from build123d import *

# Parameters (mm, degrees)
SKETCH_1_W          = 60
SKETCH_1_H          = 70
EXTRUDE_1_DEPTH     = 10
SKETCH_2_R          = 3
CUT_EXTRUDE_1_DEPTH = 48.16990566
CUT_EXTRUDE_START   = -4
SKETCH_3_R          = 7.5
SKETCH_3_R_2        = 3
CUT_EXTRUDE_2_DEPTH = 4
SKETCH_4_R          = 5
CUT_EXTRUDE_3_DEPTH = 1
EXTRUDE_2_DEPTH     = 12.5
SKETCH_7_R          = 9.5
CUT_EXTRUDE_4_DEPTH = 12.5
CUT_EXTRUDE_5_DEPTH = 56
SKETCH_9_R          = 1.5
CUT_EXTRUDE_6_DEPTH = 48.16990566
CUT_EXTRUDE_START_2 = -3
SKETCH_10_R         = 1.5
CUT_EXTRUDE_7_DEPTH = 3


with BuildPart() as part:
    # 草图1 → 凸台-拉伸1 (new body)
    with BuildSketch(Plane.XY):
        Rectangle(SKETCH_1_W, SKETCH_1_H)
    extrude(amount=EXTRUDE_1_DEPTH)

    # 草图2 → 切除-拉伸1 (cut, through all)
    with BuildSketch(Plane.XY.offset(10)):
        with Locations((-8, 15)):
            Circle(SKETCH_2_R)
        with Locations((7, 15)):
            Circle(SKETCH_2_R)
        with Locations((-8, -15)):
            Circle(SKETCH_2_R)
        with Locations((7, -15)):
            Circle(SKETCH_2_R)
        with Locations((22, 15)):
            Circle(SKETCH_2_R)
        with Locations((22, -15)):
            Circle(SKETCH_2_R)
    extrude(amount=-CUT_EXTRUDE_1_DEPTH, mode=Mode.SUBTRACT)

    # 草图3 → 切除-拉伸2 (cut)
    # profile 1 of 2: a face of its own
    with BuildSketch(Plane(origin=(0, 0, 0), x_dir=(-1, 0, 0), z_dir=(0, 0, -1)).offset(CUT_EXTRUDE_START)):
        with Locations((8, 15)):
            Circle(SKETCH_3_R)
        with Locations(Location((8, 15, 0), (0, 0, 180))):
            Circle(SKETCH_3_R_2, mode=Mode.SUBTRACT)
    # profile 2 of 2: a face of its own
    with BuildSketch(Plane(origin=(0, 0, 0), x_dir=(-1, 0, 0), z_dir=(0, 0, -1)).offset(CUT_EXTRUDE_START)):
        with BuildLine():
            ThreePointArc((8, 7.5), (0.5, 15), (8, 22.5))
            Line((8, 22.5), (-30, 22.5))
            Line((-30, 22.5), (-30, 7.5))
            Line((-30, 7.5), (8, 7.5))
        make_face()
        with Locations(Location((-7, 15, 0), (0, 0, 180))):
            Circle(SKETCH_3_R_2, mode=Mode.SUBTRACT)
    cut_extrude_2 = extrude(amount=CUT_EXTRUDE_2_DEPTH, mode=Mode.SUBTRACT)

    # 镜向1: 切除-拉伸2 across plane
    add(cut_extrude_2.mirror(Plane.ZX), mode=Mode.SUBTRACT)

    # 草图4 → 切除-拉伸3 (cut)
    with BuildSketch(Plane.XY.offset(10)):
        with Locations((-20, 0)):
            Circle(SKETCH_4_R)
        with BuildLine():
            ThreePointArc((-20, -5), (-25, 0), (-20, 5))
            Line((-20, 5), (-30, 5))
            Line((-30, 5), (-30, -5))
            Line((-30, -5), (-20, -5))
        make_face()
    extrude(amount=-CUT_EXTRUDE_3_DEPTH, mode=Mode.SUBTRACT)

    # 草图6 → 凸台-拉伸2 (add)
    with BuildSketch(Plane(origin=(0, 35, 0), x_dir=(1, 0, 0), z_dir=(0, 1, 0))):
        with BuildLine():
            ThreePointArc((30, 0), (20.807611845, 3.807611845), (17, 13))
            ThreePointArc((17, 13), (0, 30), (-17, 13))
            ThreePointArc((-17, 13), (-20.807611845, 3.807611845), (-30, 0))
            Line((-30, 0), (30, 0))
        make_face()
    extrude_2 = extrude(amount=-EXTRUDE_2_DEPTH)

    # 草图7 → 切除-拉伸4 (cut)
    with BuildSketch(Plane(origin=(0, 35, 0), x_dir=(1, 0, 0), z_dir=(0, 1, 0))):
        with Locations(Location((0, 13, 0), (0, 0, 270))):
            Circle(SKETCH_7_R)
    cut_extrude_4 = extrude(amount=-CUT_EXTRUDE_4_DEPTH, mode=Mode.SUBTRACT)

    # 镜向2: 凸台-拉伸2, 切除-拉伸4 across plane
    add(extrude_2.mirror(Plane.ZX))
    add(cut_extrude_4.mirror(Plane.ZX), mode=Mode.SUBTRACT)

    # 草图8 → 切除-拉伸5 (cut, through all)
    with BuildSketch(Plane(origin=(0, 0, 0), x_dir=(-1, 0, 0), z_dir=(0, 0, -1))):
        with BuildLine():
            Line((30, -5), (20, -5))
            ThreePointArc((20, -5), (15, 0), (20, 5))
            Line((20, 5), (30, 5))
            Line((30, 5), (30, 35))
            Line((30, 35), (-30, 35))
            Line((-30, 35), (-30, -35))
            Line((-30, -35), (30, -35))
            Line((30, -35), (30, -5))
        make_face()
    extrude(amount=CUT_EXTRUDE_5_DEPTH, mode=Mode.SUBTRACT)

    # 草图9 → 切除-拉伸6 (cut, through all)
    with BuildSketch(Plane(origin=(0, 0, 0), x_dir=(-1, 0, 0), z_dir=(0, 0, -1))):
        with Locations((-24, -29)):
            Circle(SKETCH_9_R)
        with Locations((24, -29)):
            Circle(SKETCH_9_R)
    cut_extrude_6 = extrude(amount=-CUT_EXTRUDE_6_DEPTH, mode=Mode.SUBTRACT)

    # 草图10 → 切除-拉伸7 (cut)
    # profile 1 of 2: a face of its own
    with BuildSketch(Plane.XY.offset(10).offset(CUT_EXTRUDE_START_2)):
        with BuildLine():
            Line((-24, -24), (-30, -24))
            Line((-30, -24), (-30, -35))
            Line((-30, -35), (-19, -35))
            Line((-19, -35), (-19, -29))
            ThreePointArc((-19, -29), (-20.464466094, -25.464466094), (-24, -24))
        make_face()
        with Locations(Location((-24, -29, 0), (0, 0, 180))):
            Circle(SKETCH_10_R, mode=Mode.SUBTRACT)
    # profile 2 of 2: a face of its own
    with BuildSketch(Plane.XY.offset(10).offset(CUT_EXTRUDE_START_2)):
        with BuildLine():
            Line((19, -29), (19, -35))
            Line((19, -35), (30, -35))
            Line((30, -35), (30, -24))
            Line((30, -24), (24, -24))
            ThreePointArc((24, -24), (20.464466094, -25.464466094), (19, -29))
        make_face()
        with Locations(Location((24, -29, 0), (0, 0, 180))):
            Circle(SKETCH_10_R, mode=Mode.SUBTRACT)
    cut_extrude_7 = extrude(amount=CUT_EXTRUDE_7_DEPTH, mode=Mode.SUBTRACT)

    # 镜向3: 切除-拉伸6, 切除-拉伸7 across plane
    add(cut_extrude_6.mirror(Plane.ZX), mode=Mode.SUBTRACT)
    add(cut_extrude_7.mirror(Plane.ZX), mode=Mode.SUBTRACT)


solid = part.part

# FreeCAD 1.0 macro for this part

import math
import FreeCAD as App
import Part
import Sketcher

doc = App.newDocument("Part")
body = doc.addObject("PartDesign::Body", "Body")

# Sketch on XY plane
sketch1 = body.newObject("Sketcher::SketchObject", "Sketch")
sketch1.AttachmentSupport = (doc.getObject("XY_Plane"), [""])
sketch1.MapMode = "FlatFace"
sketch1.addGeometry([
    Part.LineSegment(App.Vector(-30, 35, 0), App.Vector(-30, -35, 0)),
    Part.LineSegment(App.Vector(-30, -35, 0), App.Vector(30, -35, 0)),
    Part.LineSegment(App.Vector(30, -35, 0), App.Vector(30, 35, 0)),
    Part.LineSegment(App.Vector(30, 35, 0), App.Vector(-30, 35, 0)),
], False)
sketch1.addConstraint([
    Sketcher.Constraint("Coincident", 0, 2, 1, 1),
    Sketcher.Constraint("Coincident", 1, 2, 2, 1),
    Sketcher.Constraint("Coincident", 2, 2, 3, 1),
    Sketcher.Constraint("Coincident", 3, 2, 0, 1),
    Sketcher.Constraint("Vertical", 0),
    Sketcher.Constraint("Horizontal", 1),
    Sketcher.Constraint("Vertical", 2),
    Sketcher.Constraint("Horizontal", 3),
    Sketcher.Constraint("Symmetric", 0, 2, 2, 2, -1, 1),
    Sketcher.Constraint("DistanceX", 1, 1, 1, 2, 60.0),
    Sketcher.Constraint("DistanceY", 0, 2, 0, 1, 70.0),
])
pad1 = body.newObject("PartDesign::Pad", "Pad")
pad1.Profile = sketch1
pad1.Length = 10

# Sketch on XY plane
sketch2 = body.newObject("Sketcher::SketchObject", "Sketch001")
sketch2.AttachmentSupport = (doc.getObject("XY_Plane"), [""])
sketch2.MapMode = "FlatFace"
sketch2.AttachmentOffset = App.Placement(App.Vector(0, 0, 10), App.Rotation())
sketch2.addGeometry([
    Part.Circle(App.Vector(-8, 15, 0), App.Vector(0, 0, 1), 3),  # 0
    Part.Circle(App.Vector(7, 15, 0), App.Vector(0, 0, 1), 3),  # 1
    Part.Circle(App.Vector(-8, -15, 0), App.Vector(0, 0, 1), 3),  # 2
    Part.Circle(App.Vector(7, -15, 0), App.Vector(0, 0, 1), 3),  # 3
    Part.Circle(App.Vector(22, 15, 0), App.Vector(0, 0, 1), 3),  # 4
    Part.Circle(App.Vector(22, -15, 0), App.Vector(0, 0, 1), 3),  # 5
], False)
sketch2.addConstraint([
    Sketcher.Constraint("Equal", 0, 1),
    Sketcher.Constraint("Equal", 1, 2),
    Sketcher.Constraint("Equal", 2, 3),
    Sketcher.Constraint("Equal", 3, 4),
    Sketcher.Constraint("Equal", 4, 5),
    Sketcher.Constraint("Symmetric", 0, 3, 2, 3, -1),
    Sketcher.Constraint("Symmetric", 1, 3, 3, 3, -1),
    Sketcher.Constraint("Symmetric", 4, 3, 5, 3, -1),
    Sketcher.Constraint("Horizontal", 0, 3, 1, 3),
    Sketcher.Constraint("Horizontal", 1, 3, 4, 3),
    Sketcher.Constraint("Diameter", 0, 6.0),
    Sketcher.Constraint("DistanceX", 0, 3, -1, 1, 8.0),
    Sketcher.Constraint("DistanceY", -1, 1, 0, 3, 15.0),
    Sketcher.Constraint("DistanceX", -1, 1, 1, 3, 7.0),
    Sketcher.Constraint("DistanceX", -1, 1, 4, 3, 22.0),
])
pocket1 = body.newObject("PartDesign::Pocket", "Pocket")
pocket1.Profile = sketch2
pocket1.Type = "ThroughAll"

# Sketch on XY plane
sketch3 = body.newObject("Sketcher::SketchObject", "Sketch002")
sketch3.AttachmentSupport = (doc.getObject("XY_Plane"), [""])
sketch3.MapMode = "FlatFace"
sketch3.AttachmentOffset = App.Placement(App.Vector(0, 0, 4), App.Rotation())
sketch3.addGeometry([
    Part.LineSegment(App.Vector(-8, 22.5, 0), App.Vector(30, 22.5, 0)),  # 0
    Part.LineSegment(App.Vector(30, 22.5, 0), App.Vector(30, 7.5, 0)),  # 1
    Part.LineSegment(App.Vector(30, 7.5, 0), App.Vector(-8, 7.5, 0)),  # 2
    Part.ArcOfCircle(Part.Circle(App.Vector(-8, 15, 0), App.Vector(0, 0, 1), 7.5), math.radians(90), math.radians(270)),  # 3
    Part.Circle(App.Vector(-8, 15, 0), App.Vector(0, 0, 1), 3),  # 4
    Part.Circle(App.Vector(7, 15, 0), App.Vector(0, 0, 1), 3),  # 5
], False)
sketch3.addConstraint([
    Sketcher.Constraint("Coincident", 0, 2, 1, 1),
    Sketcher.Constraint("Coincident", 1, 2, 2, 1),
    Sketcher.Constraint("Tangent", 2, 2, 3, 2),
    Sketcher.Constraint("Tangent", 3, 1, 0, 1),
    Sketcher.Constraint("Horizontal", 0),
    Sketcher.Constraint("Vertical", 1),
    Sketcher.Constraint("Horizontal", 2),
    Sketcher.Constraint("Coincident", 4, 3, 3, 3),
    Sketcher.Constraint("Equal", 4, 5),
    Sketcher.Constraint("Horizontal", 4, 3, 5, 3),
    Sketcher.Constraint("Diameter", 4, 6.0),
    Sketcher.Constraint("Radius", 3, 7.5),
    Sketcher.Constraint("DistanceX", 0, 1, 0, 2, 38.0),
    Sketcher.Constraint("DistanceX", 3, 3, -1, 1, 8.0),
    Sketcher.Constraint("DistanceY", -1, 1, 3, 3, 15.0),
    Sketcher.Constraint("DistanceX", -1, 1, 5, 3, 7.0),
])
pocket2 = body.newObject("PartDesign::Pocket", "Pocket001")
pocket2.Profile = sketch3
pocket2.Length = 4
doc.recompute()

mirrored = body.newObject("PartDesign::Mirrored", "Mirrored")
mirrored.Originals = [pocket2]
mirrored.MirrorPlane = (doc.getObject("XZ_Plane"), [""])
body.Tip = mirrored

# Sketch on XY plane
sketch4 = body.newObject("Sketcher::SketchObject", "Sketch003")
sketch4.AttachmentSupport = (doc.getObject("XY_Plane"), [""])
sketch4.MapMode = "FlatFace"
sketch4.AttachmentOffset = App.Placement(App.Vector(0, 0, 10), App.Rotation())
sketch4.addGeometry([
    Part.LineSegment(App.Vector(-20, 5, 0), App.Vector(-30, 5, 0)),
    Part.LineSegment(App.Vector(-30, 5, 0), App.Vector(-30, -5, 0)),
    Part.LineSegment(App.Vector(-30, -5, 0), App.Vector(-20, -5, 0)),
    Part.ArcOfCircle(Part.Circle(App.Vector(-20, 0, 0), App.Vector(0, 0, 1), 5), math.radians(-90), math.radians(90)),
], False)
sketch4.addConstraint([
    Sketcher.Constraint("Coincident", 0, 2, 1, 1),
    Sketcher.Constraint("Coincident", 1, 2, 2, 1),
    Sketcher.Constraint("Tangent", 2, 2, 3, 1),
    Sketcher.Constraint("Tangent", 3, 2, 0, 1),
    Sketcher.Constraint("Horizontal", 0),
    Sketcher.Constraint("Vertical", 1),
    Sketcher.Constraint("Horizontal", 2),
    Sketcher.Constraint("PointOnObject", 3, 3, -1),
    Sketcher.Constraint("Equal", 2, 1),
    Sketcher.Constraint("Radius", 3, 5.0),
    Sketcher.Constraint("DistanceX", 3, 3, -1, 1, 20.0),
])
pocket3 = body.newObject("PartDesign::Pocket", "Pocket002")
pocket3.Profile = sketch4
pocket3.Length = 1

# Sketch on XZ plane
sketch5 = body.newObject("Sketcher::SketchObject", "Sketch004")
sketch5.AttachmentSupport = (doc.getObject("XZ_Plane"), [""])
sketch5.MapMode = "FlatFace"
sketch5.AttachmentOffset = App.Placement(App.Vector(0, 0, -35), App.Rotation())
sketch5.addGeometry([
    Part.ArcOfCircle(Part.Circle(App.Vector(30, -13, 0), App.Vector(0, 0, 1), 13), math.radians(90), math.radians(180)),
    Part.ArcOfCircle(Part.Circle(App.Vector(0, -13, 0), App.Vector(0, 0, 1), 17), math.radians(180), math.radians(360)),
    Part.ArcOfCircle(Part.Circle(App.Vector(-30, -13, 0), App.Vector(0, 0, 1), 13), math.radians(0), math.radians(90)),
    Part.LineSegment(App.Vector(-30, 0, 0), App.Vector(30, 0, 0)),
], False)
sketch5.addConstraint([
    Sketcher.Constraint("Tangent", 0, 2, 1, 2),
    Sketcher.Constraint("Tangent", 1, 1, 2, 1),
    Sketcher.Constraint("Tangent", 2, 2, 3, 1),
    Sketcher.Constraint("Tangent", 3, 2, 0, 1),
    Sketcher.Constraint("Horizontal", 3),
    Sketcher.Constraint("Equal", 0, 2),
    Sketcher.Constraint("Symmetric", 2, 2, 3, 2, -1, 1),
    Sketcher.Constraint("Horizontal", 0, 3, 1, 3),
    Sketcher.Constraint("Radius", 0, 13.0),
    Sketcher.Constraint("Radius", 1, 17.0),
])
pad2 = body.newObject("PartDesign::Pad", "Pad001")
pad2.Profile = sketch5
pad2.Length = 12.5

# Sketch on XZ plane
sketch6 = body.newObject("Sketcher::SketchObject", "Sketch005")
sketch6.AttachmentSupport = (doc.getObject("XZ_Plane"), [""])
sketch6.MapMode = "FlatFace"
sketch6.AttachmentOffset = App.Placement(App.Vector(0, 0, -35), App.Rotation())
sketch6.addGeometry(Part.Circle(App.Vector(0, -13, 0), App.Vector(0, 0, 1), 10), False)
sketch6.addConstraint([
    Sketcher.Constraint("PointOnObject", 0, 3, -2),
    Sketcher.Constraint("Diameter", 0, 19.0),
    Sketcher.Constraint("DistanceY", 0, 3, -1, 1, 13.0),
])
pocket4 = body.newObject("PartDesign::Pocket", "Pocket003")
pocket4.Profile = sketch6
pocket4.Length = 12.5
pocket4.Reversed = True
doc.recompute()

mirrored2 = body.newObject("PartDesign::Mirrored", "Mirrored001")
mirrored2.Originals = [pad2, pocket4]
mirrored2.MirrorPlane = (doc.getObject("XZ_Plane"), [""])
body.Tip = mirrored2

# Sketch on XY plane
sketch7 = body.newObject("Sketcher::SketchObject", "Sketch006")
sketch7.AttachmentSupport = (doc.getObject("XY_Plane"), [""])
sketch7.MapMode = "FlatFace"
sketch7.addGeometry([
    Part.LineSegment(App.Vector(-30, -5, 0), App.Vector(-20, -5, 0)),  # 0
    Part.ArcOfCircle(Part.Circle(App.Vector(-20, 0, 0), App.Vector(0, 0, 1), 5), math.radians(-90), math.radians(90)),  # 1
    Part.LineSegment(App.Vector(-20, 5, 0), App.Vector(-30, 5, 0)),  # 2
    Part.LineSegment(App.Vector(-30, 5, 0), App.Vector(-30, 35, 0)),  # 3
    Part.LineSegment(App.Vector(-30, 35, 0), App.Vector(30, 35, 0)),  # 4
    Part.LineSegment(App.Vector(30, 35, 0), App.Vector(30, -35, 0)),  # 5
    Part.LineSegment(App.Vector(30, -35, 0), App.Vector(-30, -35, 0)),  # 6
    Part.LineSegment(App.Vector(-30, -35, 0), App.Vector(-30, -5, 0)),  # 7
], False)
sketch7.addConstraint([
    Sketcher.Constraint("Tangent", 0, 2, 1, 1),
    Sketcher.Constraint("Tangent", 1, 2, 2, 1),
    Sketcher.Constraint("Coincident", 2, 2, 3, 1),
    Sketcher.Constraint("Coincident", 3, 2, 4, 1),
    Sketcher.Constraint("Coincident", 4, 2, 5, 1),
    Sketcher.Constraint("Coincident", 5, 2, 6, 1),
    Sketcher.Constraint("Coincident", 6, 2, 7, 1),
    Sketcher.Constraint("Coincident", 7, 2, 0, 1),
    Sketcher.Constraint("Horizontal", 0),
    Sketcher.Constraint("Horizontal", 2),
    Sketcher.Constraint("Vertical", 3),
    Sketcher.Constraint("Horizontal", 4),
    Sketcher.Constraint("Vertical", 5),
    Sketcher.Constraint("Horizontal", 6),
    Sketcher.Constraint("Vertical", 7),
    Sketcher.Constraint("Symmetric", 3, 2, 5, 2, -1, 1),
    Sketcher.Constraint("Symmetric", 2, 2, 7, 2, -1),
    Sketcher.Constraint("Radius", 1, 5.0),
    Sketcher.Constraint("DistanceX", 0, 1, 0, 2, 10.0),
    Sketcher.Constraint("DistanceX", 4, 1, 4, 2, 60.0),
    Sketcher.Constraint("DistanceY", 3, 1, 3, 2, 30.0),
])
pocket5 = body.newObject("PartDesign::Pocket", "Pocket004")
pocket5.Profile = sketch7
pocket5.Type = "ThroughAll"

# Sketch on XY plane
sketch8 = body.newObject("Sketcher::SketchObject", "Sketch007")
sketch8.AttachmentSupport = (doc.getObject("XY_Plane"), [""])
sketch8.MapMode = "FlatFace"
sketch8.addGeometry([
    Part.Circle(App.Vector(24, -29, 0), App.Vector(0, 0, 1), 1.5),
    Part.Circle(App.Vector(-24, -29, 0), App.Vector(0, 0, 1), 1.5),
], False)
sketch8.addConstraint([
    Sketcher.Constraint("Equal", 0, 1),
    Sketcher.Constraint("Symmetric", 0, 3, 1, 3, -2),
    Sketcher.Constraint("Diameter", 0, 3.0),
    Sketcher.Constraint("DistanceX", -1, 1, 0, 3, 24.0),
    Sketcher.Constraint("DistanceY", 0, 3, -1, 1, 29.0),
])
pocket6 = body.newObject("PartDesign::Pocket", "Pocket005")
pocket6.Profile = sketch8
pocket6.Type = "ThroughAll"
pocket6.Reversed = True

# Sketch on XY plane
sketch9 = body.newObject("Sketcher::SketchObject", "Sketch008")
sketch9.AttachmentSupport = (doc.getObject("XY_Plane"), [""])
sketch9.MapMode = "FlatFace"
sketch9.AttachmentOffset = App.Placement(App.Vector(0, 0, 7), App.Rotation())
sketch9.addGeometry([
    Part.LineSegment(App.Vector(-24, -24, 0), App.Vector(-30, -24, 0)),  # 0
    Part.LineSegment(App.Vector(-30, -24, 0), App.Vector(-30, -35, 0)),  # 1
    Part.LineSegment(App.Vector(-30, -35, 0), App.Vector(-19, -35, 0)),  # 2
    Part.LineSegment(App.Vector(-19, -35, 0), App.Vector(-19, -29, 0)),  # 3
    Part.ArcOfCircle(Part.Circle(App.Vector(-24, -29, 0), App.Vector(0, 0, 1), 5), math.radians(0), math.radians(90)),  # 4
    Part.Circle(App.Vector(-24, -29, 0), App.Vector(0, 0, 1), 1.5),  # 5
    Part.LineSegment(App.Vector(19, -29, 0), App.Vector(19, -35, 0)),  # 6
    Part.LineSegment(App.Vector(19, -35, 0), App.Vector(30, -35, 0)),  # 7
    Part.LineSegment(App.Vector(30, -35, 0), App.Vector(30, -24, 0)),  # 8
    Part.LineSegment(App.Vector(30, -24, 0), App.Vector(24, -24, 0)),  # 9
    Part.ArcOfCircle(Part.Circle(App.Vector(24, -29, 0), App.Vector(0, 0, 1), 5), math.radians(90), math.radians(180)),  # 10
    Part.Circle(App.Vector(24, -29, 0), App.Vector(0, 0, 1), 1.5),  # 11
], False)
sketch9.addConstraint([
    Sketcher.Constraint("Coincident", 0, 2, 1, 1),
    Sketcher.Constraint("Coincident", 1, 2, 2, 1),
    Sketcher.Constraint("Coincident", 2, 2, 3, 1),
    Sketcher.Constraint("Tangent", 3, 2, 4, 1),
    Sketcher.Constraint("Tangent", 4, 2, 0, 1),
    Sketcher.Constraint("Coincident", 6, 2, 7, 1),
    Sketcher.Constraint("Coincident", 7, 2, 8, 1),
    Sketcher.Constraint("Coincident", 8, 2, 9, 1),
    Sketcher.Constraint("Tangent", 9, 2, 10, 1),
    Sketcher.Constraint("Tangent", 10, 2, 6, 1),
    Sketcher.Constraint("Horizontal", 0),
    Sketcher.Constraint("Vertical", 1),
    Sketcher.Constraint("Horizontal", 2),
    Sketcher.Constraint("Vertical", 3),
    Sketcher.Constraint("Vertical", 6),
    Sketcher.Constraint("Horizontal", 7),
    Sketcher.Constraint("Vertical", 8),
    Sketcher.Constraint("Horizontal", 9),
    Sketcher.Constraint("Coincident", 5, 3, 4, 3),
    Sketcher.Constraint("Coincident", 11, 3, 10, 3),
    Sketcher.Constraint("Equal", 4, 10),
    Sketcher.Constraint("Equal", 5, 11),
    Sketcher.Constraint("Symmetric", 4, 3, 10, 3, -2),
    Sketcher.Constraint("Symmetric", 1, 2, 7, 2, -2),
    Sketcher.Constraint("Equal", 7, 1),
    Sketcher.Constraint("Diameter", 5, 3.0),
    Sketcher.Constraint("Radius", 4, 5.0),
    Sketcher.Constraint("DistanceX", 0, 2, 0, 1, 6.0),
    Sketcher.Constraint("DistanceX", 4, 3, -1, 1, 24.0),
    Sketcher.Constraint("DistanceY", 4, 3, -1, 1, 29.0),
])
pocket7 = body.newObject("PartDesign::Pocket", "Pocket006")
pocket7.Profile = sketch9
pocket7.Length = 3
pocket7.Reversed = True
doc.recompute()

mirrored3 = body.newObject("PartDesign::Mirrored", "Mirrored002")
mirrored3.Originals = [pocket6, pocket7]
mirrored3.MirrorPlane = (doc.getObject("XZ_Plane"), [""])
body.Tip = mirrored3

doc.recompute()
